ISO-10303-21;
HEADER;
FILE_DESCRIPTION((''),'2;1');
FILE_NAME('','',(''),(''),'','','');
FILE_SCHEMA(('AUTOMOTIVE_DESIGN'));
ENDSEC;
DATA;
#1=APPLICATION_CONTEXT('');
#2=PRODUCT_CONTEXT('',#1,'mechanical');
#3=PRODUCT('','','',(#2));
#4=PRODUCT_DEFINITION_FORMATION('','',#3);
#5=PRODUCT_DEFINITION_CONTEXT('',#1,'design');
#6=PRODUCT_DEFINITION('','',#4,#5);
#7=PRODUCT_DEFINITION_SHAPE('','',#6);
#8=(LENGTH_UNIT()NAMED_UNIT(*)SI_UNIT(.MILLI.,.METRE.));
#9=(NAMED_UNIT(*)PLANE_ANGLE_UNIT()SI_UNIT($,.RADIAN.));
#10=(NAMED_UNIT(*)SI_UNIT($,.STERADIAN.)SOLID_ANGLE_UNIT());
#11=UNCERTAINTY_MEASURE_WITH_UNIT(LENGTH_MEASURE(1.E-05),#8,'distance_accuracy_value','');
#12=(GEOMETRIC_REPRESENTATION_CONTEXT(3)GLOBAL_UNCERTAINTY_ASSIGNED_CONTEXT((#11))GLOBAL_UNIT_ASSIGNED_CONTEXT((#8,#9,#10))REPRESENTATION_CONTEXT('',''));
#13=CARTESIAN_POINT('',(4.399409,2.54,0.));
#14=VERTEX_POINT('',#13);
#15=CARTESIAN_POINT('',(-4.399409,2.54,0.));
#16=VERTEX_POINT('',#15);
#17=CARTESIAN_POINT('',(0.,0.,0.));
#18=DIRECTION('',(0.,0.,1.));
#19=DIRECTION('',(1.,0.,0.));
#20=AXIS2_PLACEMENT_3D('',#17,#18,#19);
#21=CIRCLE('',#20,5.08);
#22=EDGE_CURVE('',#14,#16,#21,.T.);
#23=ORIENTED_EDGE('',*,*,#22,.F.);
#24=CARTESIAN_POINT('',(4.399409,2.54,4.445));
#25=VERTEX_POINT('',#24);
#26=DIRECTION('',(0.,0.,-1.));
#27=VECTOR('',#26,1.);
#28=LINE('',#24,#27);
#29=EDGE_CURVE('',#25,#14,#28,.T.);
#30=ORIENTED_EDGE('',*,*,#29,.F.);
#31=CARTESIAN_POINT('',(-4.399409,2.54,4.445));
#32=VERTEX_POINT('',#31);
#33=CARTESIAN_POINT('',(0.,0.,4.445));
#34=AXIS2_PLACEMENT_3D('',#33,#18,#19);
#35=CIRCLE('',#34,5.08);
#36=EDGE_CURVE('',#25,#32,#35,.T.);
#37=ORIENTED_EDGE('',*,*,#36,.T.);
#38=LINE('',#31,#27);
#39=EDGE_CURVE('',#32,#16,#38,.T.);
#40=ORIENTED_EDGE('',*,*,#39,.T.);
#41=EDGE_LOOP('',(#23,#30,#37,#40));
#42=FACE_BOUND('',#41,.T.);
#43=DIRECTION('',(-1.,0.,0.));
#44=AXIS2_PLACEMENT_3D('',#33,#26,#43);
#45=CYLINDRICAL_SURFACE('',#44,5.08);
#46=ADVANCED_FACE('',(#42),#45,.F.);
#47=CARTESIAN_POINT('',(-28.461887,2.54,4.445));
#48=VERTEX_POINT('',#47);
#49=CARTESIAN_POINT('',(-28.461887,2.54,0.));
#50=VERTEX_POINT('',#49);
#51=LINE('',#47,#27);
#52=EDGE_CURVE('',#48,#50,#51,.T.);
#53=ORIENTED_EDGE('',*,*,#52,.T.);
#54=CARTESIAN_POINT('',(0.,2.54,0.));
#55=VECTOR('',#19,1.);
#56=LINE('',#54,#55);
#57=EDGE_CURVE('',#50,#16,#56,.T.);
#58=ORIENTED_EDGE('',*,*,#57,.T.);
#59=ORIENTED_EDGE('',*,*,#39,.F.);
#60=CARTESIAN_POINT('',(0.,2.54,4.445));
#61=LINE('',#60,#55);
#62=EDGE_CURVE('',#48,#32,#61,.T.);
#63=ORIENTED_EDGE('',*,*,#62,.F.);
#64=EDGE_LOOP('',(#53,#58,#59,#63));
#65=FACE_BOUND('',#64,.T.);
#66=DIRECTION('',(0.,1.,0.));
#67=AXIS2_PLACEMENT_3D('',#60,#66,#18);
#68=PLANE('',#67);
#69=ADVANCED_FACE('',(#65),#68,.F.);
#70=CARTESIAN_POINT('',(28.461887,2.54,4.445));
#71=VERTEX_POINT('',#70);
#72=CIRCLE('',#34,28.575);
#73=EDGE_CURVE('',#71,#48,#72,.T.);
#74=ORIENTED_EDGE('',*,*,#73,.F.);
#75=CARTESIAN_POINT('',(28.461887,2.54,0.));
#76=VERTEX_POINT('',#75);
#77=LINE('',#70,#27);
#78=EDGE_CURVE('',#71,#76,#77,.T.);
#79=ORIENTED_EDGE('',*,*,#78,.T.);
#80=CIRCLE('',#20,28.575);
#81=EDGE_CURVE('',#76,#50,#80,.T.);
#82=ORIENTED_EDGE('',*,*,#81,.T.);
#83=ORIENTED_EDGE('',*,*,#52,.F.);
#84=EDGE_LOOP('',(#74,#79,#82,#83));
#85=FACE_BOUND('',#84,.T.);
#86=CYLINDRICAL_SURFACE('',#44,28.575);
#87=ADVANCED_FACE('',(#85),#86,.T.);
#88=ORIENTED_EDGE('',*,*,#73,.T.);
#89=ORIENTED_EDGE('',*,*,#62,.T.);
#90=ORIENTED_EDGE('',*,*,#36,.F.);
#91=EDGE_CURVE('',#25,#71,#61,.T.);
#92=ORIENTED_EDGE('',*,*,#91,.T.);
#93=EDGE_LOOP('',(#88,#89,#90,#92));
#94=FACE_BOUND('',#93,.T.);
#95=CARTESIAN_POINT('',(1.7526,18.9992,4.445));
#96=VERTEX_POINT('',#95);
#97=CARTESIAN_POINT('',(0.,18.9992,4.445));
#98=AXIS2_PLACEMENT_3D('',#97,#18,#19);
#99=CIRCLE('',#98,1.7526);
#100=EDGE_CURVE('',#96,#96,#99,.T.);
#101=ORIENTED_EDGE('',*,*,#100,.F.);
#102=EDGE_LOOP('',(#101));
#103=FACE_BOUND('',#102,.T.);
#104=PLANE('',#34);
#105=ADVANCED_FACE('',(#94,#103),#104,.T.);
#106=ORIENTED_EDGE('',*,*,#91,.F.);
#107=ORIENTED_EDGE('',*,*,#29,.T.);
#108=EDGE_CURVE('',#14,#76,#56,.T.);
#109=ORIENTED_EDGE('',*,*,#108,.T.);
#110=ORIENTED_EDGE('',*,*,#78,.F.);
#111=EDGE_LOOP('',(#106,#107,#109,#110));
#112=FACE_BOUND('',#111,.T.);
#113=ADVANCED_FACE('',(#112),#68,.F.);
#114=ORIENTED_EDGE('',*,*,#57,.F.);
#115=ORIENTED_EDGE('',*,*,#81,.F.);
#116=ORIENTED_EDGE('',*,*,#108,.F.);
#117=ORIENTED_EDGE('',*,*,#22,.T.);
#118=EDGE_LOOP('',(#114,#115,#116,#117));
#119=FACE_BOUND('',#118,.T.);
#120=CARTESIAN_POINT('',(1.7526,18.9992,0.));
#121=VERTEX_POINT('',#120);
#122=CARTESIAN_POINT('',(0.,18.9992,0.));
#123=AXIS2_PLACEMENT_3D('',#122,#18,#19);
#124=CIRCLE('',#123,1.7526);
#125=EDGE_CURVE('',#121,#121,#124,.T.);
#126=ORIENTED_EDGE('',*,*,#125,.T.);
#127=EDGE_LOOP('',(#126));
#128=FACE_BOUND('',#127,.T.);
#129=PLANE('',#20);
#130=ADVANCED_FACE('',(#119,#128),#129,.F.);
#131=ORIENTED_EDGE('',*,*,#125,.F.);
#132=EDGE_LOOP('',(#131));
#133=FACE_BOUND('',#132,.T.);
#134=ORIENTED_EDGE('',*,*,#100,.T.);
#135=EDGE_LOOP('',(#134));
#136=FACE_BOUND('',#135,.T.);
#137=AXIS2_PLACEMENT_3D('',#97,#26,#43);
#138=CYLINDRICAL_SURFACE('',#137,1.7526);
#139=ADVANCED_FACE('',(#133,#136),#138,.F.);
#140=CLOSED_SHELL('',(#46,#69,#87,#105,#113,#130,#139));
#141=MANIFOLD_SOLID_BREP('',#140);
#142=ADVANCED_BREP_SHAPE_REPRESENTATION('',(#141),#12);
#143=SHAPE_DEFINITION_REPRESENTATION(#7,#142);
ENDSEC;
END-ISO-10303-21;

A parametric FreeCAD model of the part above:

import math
import FreeCAD as App
import Part
import Sketcher

V = App.Vector
Q = App.Units.Quantity

doc = App.newDocument("Part")
body = doc.addObject("PartDesign::Body", "Body")

sketch1 = doc.addObject("Sketcher::SketchObject", "Sketch")
body.addObject(sketch1)
sketch1.AttachmentSupport = (doc.XY_Plane, [""])
sketch1.MapMode = "FlatFace"
sketch1.addGeometry([
    Part.ArcOfCircle(Part.Circle(V(0, 0, 0), V(0, 0, 1), 28.575), math.radians(5.099689), math.radians(174.900311)),
    Part.LineSegment(V(-28.461887, 2.54, 0), V(-4.399409, 2.54, 0)),
    Part.ArcOfCircle(Part.Circle(V(0, 0, 0), V(0, 0, 1), 5.08), math.radians(30), math.radians(150)),
    Part.LineSegment(V(4.399409, 2.54, 0), V(28.461887, 2.54, 0)),
    Part.Circle(V(0, 18.9992, 0), V(0, 0, 1), 1.7526),
], False)
sketch1.addConstraint([
    Sketcher.Constraint("Coincident", 0, 2, 1, 1),
    Sketcher.Constraint("Coincident", 1, 2, 2, 2),
    Sketcher.Constraint("Coincident", 2, 1, 3, 1),
    Sketcher.Constraint("Coincident", 3, 2, 0, 1),
    Sketcher.Constraint("Horizontal", 1),
    Sketcher.Constraint("Horizontal", 3),
    Sketcher.Constraint("Coincident", 0, 3, -1, 1),
    Sketcher.Constraint("Coincident", 2, 3, -1, 1),
    Sketcher.Constraint("PointOnObject", 4, 3, -2),
    Sketcher.Constraint("Horizontal", 1, 2, 2, 1),
    Sketcher.Constraint("Radius", 2, Q("0.2 in")),
    Sketcher.Constraint("Diameter", 4, Q("0.138 in")),
    Sketcher.Constraint("Radius", 0, Q("1.125 in")),
    Sketcher.Constraint("DistanceY", -1, 1, 0, 2, Q("0.1 in")),
    Sketcher.Constraint("DistanceY", -1, 1, 4, 3, Q("0.748 in")),
])
pad1 = doc.addObject("PartDesign::Pad", "Pad")
body.addObject(pad1)
pad1.Profile = sketch1
pad1.Length = Q("0.175 in")

doc.recompute()
